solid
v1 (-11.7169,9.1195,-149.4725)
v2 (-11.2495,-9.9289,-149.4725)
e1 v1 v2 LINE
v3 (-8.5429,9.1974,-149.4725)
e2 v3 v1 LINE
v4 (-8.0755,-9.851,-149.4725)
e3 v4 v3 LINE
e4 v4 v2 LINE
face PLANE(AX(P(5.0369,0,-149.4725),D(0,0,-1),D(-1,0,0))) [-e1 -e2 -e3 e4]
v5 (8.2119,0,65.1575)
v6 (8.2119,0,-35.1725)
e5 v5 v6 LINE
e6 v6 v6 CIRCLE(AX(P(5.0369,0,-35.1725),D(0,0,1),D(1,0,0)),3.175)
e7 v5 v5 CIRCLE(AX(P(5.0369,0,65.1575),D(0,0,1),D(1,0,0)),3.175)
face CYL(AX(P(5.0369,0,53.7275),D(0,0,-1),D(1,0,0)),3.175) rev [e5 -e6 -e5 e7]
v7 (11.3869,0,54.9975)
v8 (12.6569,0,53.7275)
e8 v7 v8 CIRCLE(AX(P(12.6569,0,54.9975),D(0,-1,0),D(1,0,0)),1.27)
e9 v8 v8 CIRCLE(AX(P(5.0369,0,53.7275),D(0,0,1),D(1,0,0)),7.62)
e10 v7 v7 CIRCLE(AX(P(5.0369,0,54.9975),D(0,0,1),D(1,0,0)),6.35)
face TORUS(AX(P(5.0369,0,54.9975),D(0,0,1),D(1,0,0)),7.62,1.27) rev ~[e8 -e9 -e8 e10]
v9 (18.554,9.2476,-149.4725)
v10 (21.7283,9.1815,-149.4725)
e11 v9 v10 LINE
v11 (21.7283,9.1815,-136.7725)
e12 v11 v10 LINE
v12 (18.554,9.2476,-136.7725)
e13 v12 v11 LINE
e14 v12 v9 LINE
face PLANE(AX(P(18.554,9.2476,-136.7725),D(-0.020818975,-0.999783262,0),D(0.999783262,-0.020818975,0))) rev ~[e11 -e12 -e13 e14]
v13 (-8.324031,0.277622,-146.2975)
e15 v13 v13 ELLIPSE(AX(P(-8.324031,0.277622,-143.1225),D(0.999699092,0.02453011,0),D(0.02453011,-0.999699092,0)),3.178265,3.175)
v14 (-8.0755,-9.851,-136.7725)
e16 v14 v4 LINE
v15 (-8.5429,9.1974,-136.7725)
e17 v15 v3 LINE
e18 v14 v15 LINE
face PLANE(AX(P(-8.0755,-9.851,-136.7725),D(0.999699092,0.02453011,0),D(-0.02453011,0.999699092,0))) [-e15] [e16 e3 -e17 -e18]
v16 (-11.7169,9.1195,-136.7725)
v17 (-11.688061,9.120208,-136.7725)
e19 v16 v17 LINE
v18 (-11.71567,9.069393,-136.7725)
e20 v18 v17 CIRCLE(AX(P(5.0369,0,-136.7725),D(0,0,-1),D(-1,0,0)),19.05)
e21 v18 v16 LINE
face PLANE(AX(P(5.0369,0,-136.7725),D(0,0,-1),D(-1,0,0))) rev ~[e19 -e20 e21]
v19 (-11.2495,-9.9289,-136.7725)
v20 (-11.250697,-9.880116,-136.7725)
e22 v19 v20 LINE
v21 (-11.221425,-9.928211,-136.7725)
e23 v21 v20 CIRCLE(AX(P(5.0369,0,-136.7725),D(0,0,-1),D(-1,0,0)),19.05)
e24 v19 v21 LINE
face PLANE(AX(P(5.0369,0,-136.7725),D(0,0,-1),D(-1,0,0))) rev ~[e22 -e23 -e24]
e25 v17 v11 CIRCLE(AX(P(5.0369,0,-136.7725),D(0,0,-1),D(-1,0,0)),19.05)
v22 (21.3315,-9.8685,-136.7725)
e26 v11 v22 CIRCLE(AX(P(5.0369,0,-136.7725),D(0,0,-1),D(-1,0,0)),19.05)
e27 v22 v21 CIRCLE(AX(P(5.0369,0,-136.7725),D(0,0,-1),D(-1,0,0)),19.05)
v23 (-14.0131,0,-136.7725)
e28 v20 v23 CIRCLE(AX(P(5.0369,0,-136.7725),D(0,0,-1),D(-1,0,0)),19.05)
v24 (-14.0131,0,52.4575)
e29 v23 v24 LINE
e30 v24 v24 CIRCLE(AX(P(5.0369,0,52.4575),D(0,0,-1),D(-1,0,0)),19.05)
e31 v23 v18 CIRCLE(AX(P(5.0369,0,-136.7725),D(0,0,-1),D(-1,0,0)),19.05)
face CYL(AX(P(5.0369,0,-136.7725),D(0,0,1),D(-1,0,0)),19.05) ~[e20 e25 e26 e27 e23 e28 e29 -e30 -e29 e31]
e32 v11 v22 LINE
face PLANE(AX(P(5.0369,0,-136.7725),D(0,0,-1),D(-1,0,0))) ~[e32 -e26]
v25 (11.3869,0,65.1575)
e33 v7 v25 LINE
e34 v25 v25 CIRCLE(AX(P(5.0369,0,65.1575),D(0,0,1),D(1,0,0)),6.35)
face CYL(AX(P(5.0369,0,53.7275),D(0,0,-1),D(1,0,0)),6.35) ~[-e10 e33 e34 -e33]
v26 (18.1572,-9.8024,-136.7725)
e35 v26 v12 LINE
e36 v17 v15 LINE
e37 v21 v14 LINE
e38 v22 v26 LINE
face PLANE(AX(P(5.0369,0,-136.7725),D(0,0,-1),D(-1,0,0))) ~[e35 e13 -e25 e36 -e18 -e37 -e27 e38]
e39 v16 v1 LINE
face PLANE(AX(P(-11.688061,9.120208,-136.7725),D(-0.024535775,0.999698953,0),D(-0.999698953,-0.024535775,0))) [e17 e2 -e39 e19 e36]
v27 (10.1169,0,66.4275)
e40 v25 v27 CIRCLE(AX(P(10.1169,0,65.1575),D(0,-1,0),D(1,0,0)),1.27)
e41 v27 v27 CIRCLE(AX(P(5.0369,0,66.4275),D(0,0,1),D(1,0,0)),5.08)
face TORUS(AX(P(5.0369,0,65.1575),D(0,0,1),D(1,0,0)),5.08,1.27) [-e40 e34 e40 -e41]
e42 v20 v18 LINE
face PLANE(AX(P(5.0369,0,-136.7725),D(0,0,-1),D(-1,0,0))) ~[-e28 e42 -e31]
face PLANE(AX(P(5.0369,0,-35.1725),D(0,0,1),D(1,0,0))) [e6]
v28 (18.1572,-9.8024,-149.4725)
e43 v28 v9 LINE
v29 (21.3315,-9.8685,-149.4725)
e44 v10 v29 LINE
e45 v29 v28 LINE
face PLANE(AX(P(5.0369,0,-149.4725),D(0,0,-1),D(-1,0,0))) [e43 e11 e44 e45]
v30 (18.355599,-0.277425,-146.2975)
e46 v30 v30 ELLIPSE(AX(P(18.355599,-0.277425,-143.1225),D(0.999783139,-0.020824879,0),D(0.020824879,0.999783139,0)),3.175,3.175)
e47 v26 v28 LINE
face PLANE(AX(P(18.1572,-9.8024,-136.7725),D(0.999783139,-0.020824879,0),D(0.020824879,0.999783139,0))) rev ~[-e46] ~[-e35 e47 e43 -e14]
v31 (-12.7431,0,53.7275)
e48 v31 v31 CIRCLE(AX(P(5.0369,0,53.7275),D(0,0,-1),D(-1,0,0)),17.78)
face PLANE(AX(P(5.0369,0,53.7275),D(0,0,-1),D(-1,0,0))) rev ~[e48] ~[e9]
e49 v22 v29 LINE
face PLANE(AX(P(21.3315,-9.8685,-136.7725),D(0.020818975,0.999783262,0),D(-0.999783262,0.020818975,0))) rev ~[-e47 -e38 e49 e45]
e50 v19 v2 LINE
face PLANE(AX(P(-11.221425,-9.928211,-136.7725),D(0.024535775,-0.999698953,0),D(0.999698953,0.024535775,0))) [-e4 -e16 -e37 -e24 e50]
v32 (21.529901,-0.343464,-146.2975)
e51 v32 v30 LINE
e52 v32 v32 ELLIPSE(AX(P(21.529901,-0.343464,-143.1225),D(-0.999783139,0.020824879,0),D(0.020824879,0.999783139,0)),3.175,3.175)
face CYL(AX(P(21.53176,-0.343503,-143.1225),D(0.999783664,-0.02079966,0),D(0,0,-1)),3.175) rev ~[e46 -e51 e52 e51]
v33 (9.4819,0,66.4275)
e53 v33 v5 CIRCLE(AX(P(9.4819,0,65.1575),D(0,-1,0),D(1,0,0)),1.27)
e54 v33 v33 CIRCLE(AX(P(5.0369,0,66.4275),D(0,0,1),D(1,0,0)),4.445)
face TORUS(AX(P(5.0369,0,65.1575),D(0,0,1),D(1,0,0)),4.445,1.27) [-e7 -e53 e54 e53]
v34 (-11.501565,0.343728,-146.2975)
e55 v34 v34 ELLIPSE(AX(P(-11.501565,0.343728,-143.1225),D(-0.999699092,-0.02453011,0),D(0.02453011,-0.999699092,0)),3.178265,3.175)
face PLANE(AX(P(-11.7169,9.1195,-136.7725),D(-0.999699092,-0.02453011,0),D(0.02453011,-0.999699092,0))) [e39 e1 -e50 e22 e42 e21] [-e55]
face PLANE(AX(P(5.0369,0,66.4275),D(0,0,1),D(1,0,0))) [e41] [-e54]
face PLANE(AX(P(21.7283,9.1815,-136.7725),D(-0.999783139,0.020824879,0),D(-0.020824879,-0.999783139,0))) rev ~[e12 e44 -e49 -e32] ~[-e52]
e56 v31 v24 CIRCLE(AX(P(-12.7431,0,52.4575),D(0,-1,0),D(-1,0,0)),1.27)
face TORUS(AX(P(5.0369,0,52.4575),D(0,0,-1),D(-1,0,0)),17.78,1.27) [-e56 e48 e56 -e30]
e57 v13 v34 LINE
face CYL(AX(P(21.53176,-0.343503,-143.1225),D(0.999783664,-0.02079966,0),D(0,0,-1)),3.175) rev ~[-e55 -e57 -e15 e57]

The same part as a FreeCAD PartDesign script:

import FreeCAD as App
import Part
import Sketcher

V = App.Vector
Q = App.Units.Quantity


def edges_at(feature, points):
    """Names of the edges that pass closest to the given points."""
    edges = feature.Shape.Edges
    near = lambda p: min(range(len(edges)), key=lambda i: edges[i].distToShape(Part.Vertex(*p))[0])
    return sorted({f"Edge{near(p) + 1}" for p in points})


def add_polygon(sketch, points):
    """Adds a closed chain of lines whose ends are joined by coincident constraints."""
    first, n = sketch.GeometryCount, len(points)
    for a, b in zip(points, points[1:] + points[:1]):
        sketch.addGeometry(Part.LineSegment(App.Vector(*a, 0), App.Vector(*b, 0)), False)
    for i in range(n):
        sketch.addConstraint(Sketcher.Constraint("Coincident", first + i, 2, first + (i + 1) % n, 1))

doc = App.newDocument("Part")
params = doc.addObject("Spreadsheet::Sheet", "Params")
for row, (alias, value) in enumerate([
    ("sketch1_height", "7.5 in"),
    ("sketch1_width", "0.75 in"),
    ("revolution_angle", "360 deg"),
    ("sketch2_diameter", "0.25 in"),
    ("pocket1_length", "3.5 in"),
    ("sketch3_length", "0.125 in"),
    ("pad1_length", "0.5 in"),
    ("sketch4_diameter", "0.25 in"),
    ("pocket2_length", "124 in"),
    ("sketch5_diameter", "0.5 in"),
    ("sketch5_diameter2", "0.25 in"),
    ("pad2_length", "0.5 in"),
    ("fillet_radius", "0.05 in"),
], start=1):
    params.set(f"A{row}", alias)
    params.set(f"B{row}", "=" + value)
    params.setAlias(f"B{row}", alias)

body = doc.addObject("PartDesign::Body", "Body")

sketch1 = body.newObject("Sketcher::SketchObject", "Sketch")
sketch1.AttachmentSupport = (doc.getObject("XZ_Plane"), [""])
sketch1.MapMode = "FlatFace"
add_polygon(sketch1, [(-14, -137), (-14, 54), (5, 54), (5, -137)])
sketch1.addGeometry(Part.LineSegment(V(5, 54, 0), V(5, -137, 0)), True)
sketch1.addConstraint(Sketcher.Constraint("Vertical", 0))
sketch1.addConstraint(Sketcher.Constraint("Horizontal", 1))
sketch1.addConstraint(Sketcher.Constraint("Vertical", 2))
sketch1.addConstraint(Sketcher.Constraint("Horizontal", 3))
sketch1.addConstraint(Sketcher.Constraint("Vertical", 4))
sketch1.addConstraint(Sketcher.Constraint("Coincident", 4, 1, 1, 2))
sketch1.addConstraint(Sketcher.Constraint("Horizontal", 3, 2, 4, 2))
sketch1.addConstraint(Sketcher.Constraint("DistanceY", 0, 1, 0, 2, Q("7.5 in")))
sketch1.addConstraint(Sketcher.Constraint("DistanceX", 1, 1, 1, 2, Q("0.75 in")))
sketch1.addConstraint(Sketcher.Constraint("DistanceX", 0, 2, -1, 1, Q("0.5517 in")))
sketch1.addConstraint(Sketcher.Constraint("DistanceY", -1, 1, 0, 2, 53.7275))
sketch1.setExpression("Constraints[11]", "Params.sketch1_height")
sketch1.setExpression("Constraints[12]", "Params.sketch1_width")
revolution = body.newObject("PartDesign::Revolution", "Revolution")
revolution.Profile = sketch1
revolution.ReferenceAxis = (sketch1, ["Axis0"])
revolution.setExpression("Angle", "Params.revolution_angle")

sketch2 = body.newObject("Sketcher::SketchObject", "Sketch001")
sketch2.AttachmentSupport = (doc.getObject("XY_Plane"), [""])
sketch2.MapMode = "FlatFace"
sketch2.AttachmentOffset = App.Placement(V(0, 0, 53.7275), App.Rotation())
sketch2.addGeometry(Part.Circle(V(5, 0, 0), V(0, 0, 1), 3.2), False)
sketch2.addConstraint(Sketcher.Constraint("PointOnObject", 0, 3, -1))
sketch2.addConstraint(Sketcher.Constraint("Diameter", 0, Q("0.25 in")))
sketch2.addConstraint(Sketcher.Constraint("DistanceX", -1, 1, 0, 3, Q("0.1983 in")))
sketch2.setExpression("Constraints[1]", "Params.sketch2_diameter")
pocket1 = body.newObject("PartDesign::Pocket", "Pocket")
pocket1.Profile = sketch2
pocket1.setExpression("Length", "Params.pocket1_length")

sketch3 = body.newObject("Sketcher::SketchObject", "Sketch002")
sketch3.AttachmentSupport = (doc.getObject("XY_Plane"), [""])
sketch3.MapMode = "FlatFace"
sketch3.AttachmentOffset = App.Placement(V(0, 0, -136.7725), App.Rotation())
add_polygon(sketch3, [(18.6, 9.2), (21.7, 9.2), (21.3, -9.9), (18.2, -9.8)])
add_polygon(sketch3, [(-11.7, 9.1), (-8.5, 9.2), (-8.1, -9.9), (-11.2, -9.9)])
sketch3.addConstraint(Sketcher.Constraint("Perpendicular", 0, 1))
sketch3.addConstraint(Sketcher.Constraint("Perpendicular", 1, 2))
sketch3.addConstraint(Sketcher.Constraint("Perpendicular", 2, 3))
sketch3.addConstraint(Sketcher.Constraint("Perpendicular", 4, 5))
sketch3.addConstraint(Sketcher.Constraint("Perpendicular", 5, 6))
sketch3.addConstraint(Sketcher.Constraint("Perpendicular", 6, 7))
sketch3.addConstraint(Sketcher.Constraint("Equal", 2, 4))
sketch3.addConstraint(Sketcher.Constraint("Equal", 3, 5))
sketch3.addConstraint(Sketcher.Constraint("DistanceY", 1, 2, 0, 2, Q("0.75 in")))
sketch3.addConstraint(Sketcher.Constraint("Distance", 0, Q("0.125 in")))
sketch3.addConstraint(Sketcher.Constraint("DistanceX", 1, 2, 0, 2, Q("0.015622 in")))
sketch3.addConstraint(Sketcher.Constraint("DistanceY", 6, 2, 4, 2, Q("0.753 in")))
sketch3.addConstraint(Sketcher.Constraint("DistanceY", -1, 1, 4, 2, Q("0.3621 in")))
sketch3.addConstraint(Sketcher.Constraint("DistanceX", 6, 2, -1, 1, Q("0.4429 in")))
sketch3.addConstraint(Sketcher.Constraint("DistanceX", 4, 2, 3, 2, Q("1.0668 in")))
sketch3.addConstraint(Sketcher.Constraint("DistanceY", 1, 2, 5, 2, Q("0.0007 in")))
sketch3.setExpression("Constraints[17]", "Params.sketch3_length")
pad1 = body.newObject("PartDesign::Pad", "Pad")
pad1.Profile = sketch3
pad1.setExpression("Length", "Params.pad1_length")
pad1.Reversed = True

sketch4 = body.newObject("Sketcher::SketchObject", "Sketch003")
sketch4.Placement = App.Placement(V(21.3316, -9.8685, -136.7725), App.Rotation(V(0, 0, -1), V(0.02079966, 0.999783664, 0), V(0.999783664, -0.02079966, 0), "ZXY"))
sketch4.addGeometry(Part.Circle(V(6.3, 9.5, 0), V(0, 0, 1), 3.2), False)
sketch4.addConstraint(Sketcher.Constraint("Diameter", 0, Q("0.25 in")))
sketch4.addConstraint(Sketcher.Constraint("DistanceX", -1, 1, 0, 3, Q("0.25 in")))
sketch4.addConstraint(Sketcher.Constraint("DistanceY", -1, 1, 0, 3, 9.527))
sketch4.setExpression("Constraints[0]", "Params.sketch4_diameter")
pocket2 = body.newObject("PartDesign::Pocket", "Pocket001")
pocket2.Profile = sketch4
pocket2.setExpression("Length", "Params.pocket2_length")

sketch5 = body.newObject("Sketcher::SketchObject", "Sketch004")
sketch5.AttachmentSupport = (doc.getObject("XY_Plane"), [""])
sketch5.MapMode = "FlatFace"
sketch5.AttachmentOffset = App.Placement(V(0, 0, 53.7275), App.Rotation())
sketch5.addGeometry(Part.Circle(V(5, 0, 0), V(0, 0, 1), 6.3), False)
sketch5.addGeometry(Part.Circle(V(5, 0, 0), V(0, 0, 1), 3.2), False)
sketch5.addConstraint(Sketcher.Constraint("Coincident", 1, 3, 0, 3))
sketch5.addConstraint(Sketcher.Constraint("PointOnObject", 0, 3, -1))
sketch5.addConstraint(Sketcher.Constraint("Diameter", 0, Q("0.5 in")))
sketch5.addConstraint(Sketcher.Constraint("Diameter", 1, Q("0.25 in")))
sketch5.addConstraint(Sketcher.Constraint("DistanceX", -1, 1, 0, 3, Q("0.1983 in")))
sketch5.setExpression("Constraints[2]", "Params.sketch5_diameter")
sketch5.setExpression("Constraints[3]", "Params.sketch5_diameter2")
pad2 = body.newObject("PartDesign::Pad", "Pad001")
pad2.Profile = sketch5
pad2.setExpression("Length", "Params.pad2_length")
doc.recompute()

fillet = body.newObject("PartDesign::Fillet", "Fillet")
fillet.Base = (pad2, edges_at(pad2, [
    (-1.313, 0, 66.427),
    (24.087, 0, 53.727),
    (-1.313, 0, 53.727),
    (1.862, 0, 66.427),
]))
fillet.setExpression("Radius", "Params.fillet_radius")

doc.recompute()
